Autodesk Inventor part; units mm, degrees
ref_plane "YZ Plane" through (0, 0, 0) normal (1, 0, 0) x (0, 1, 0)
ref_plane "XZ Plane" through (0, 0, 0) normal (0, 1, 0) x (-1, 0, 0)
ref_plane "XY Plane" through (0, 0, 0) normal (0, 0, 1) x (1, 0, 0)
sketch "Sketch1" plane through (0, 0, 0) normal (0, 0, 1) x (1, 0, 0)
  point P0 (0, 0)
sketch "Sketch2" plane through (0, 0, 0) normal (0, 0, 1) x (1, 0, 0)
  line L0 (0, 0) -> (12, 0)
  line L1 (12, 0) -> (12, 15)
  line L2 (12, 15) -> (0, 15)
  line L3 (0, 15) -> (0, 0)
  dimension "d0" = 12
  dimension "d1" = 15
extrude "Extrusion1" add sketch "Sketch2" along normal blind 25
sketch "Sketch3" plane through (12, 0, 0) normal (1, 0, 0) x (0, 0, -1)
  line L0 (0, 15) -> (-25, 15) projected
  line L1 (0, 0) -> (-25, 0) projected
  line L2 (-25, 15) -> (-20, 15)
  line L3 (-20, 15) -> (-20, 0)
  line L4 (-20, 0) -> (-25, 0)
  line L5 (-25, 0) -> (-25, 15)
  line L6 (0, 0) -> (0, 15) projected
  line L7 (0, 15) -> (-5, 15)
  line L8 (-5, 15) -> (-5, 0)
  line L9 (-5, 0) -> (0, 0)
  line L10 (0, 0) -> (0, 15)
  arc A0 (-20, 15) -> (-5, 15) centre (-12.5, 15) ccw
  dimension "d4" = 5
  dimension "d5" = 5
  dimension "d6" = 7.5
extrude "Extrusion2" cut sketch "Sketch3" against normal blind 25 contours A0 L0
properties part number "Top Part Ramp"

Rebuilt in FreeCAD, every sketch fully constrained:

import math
import FreeCAD as App
import Part
import Sketcher

doc = App.newDocument("Part")
body = doc.addObject("PartDesign::Body", "Body")

# Sketch on XY plane
sketch1 = doc.addObject("Sketcher::SketchObject", "Sketch")
body.addObject(sketch1)
sketch1.AttachmentSupport = (doc.XY_Plane, [""])
sketch1.MapMode = "FlatFace"
sketch1.addGeometry([
    Part.LineSegment(App.Vector(0, 15, 0), App.Vector(0, 0, 0)),
    Part.LineSegment(App.Vector(0, 0, 0), App.Vector(12, 0, 0)),
    Part.LineSegment(App.Vector(12, 0, 0), App.Vector(12, 15, 0)),
    Part.LineSegment(App.Vector(12, 15, 0), App.Vector(0, 15, 0)),
], False)
sketch1.addConstraint([
    Sketcher.Constraint("Coincident", 0, 2, 1, 1),
    Sketcher.Constraint("Coincident", 1, 2, 2, 1),
    Sketcher.Constraint("Coincident", 2, 2, 3, 1),
    Sketcher.Constraint("Coincident", 3, 2, 0, 1),
    Sketcher.Constraint("Vertical", 0),
    Sketcher.Constraint("Horizontal", 1),
    Sketcher.Constraint("Vertical", 2),
    Sketcher.Constraint("Horizontal", 3),
    Sketcher.Constraint("Coincident", 0, 2, -1, 1),
    Sketcher.Constraint("DistanceX", 1, 1, 1, 2, 12.0),
    Sketcher.Constraint("DistanceY", 0, 2, 0, 1, 15.0),
])
pad1 = doc.addObject("PartDesign::Pad", "Pad")
body.addObject(pad1)
pad1.Profile = sketch1
pad1.Length = 25

# Sketch on YZ plane
sketch2 = doc.addObject("Sketcher::SketchObject", "Sketch001")
body.addObject(sketch2)
sketch2.AttachmentSupport = (doc.YZ_Plane, [""])
sketch2.MapMode = "FlatFace"
sketch2.AttachmentOffset = App.Placement(App.Vector(0, 0, 12), App.Rotation())
sketch2.addGeometry([
    Part.ArcOfCircle(Part.Circle(App.Vector(15, 12.5, 0), App.Vector(0, 0, 1), 7.5), math.radians(90), math.radians(270)),
    Part.LineSegment(App.Vector(15, 5, 0), App.Vector(15, 20, 0)),
], False)
sketch2.addConstraint([
    Sketcher.Constraint("Coincident", 0, 1, 1, 2),
    Sketcher.Constraint("Coincident", 1, 1, 0, 2),
    Sketcher.Constraint("Vertical", 1),
    Sketcher.Constraint("Radius", 0, 7.5),
    Sketcher.Constraint("DistanceY", -1, 1, 1, 1, 5.0),
    Sketcher.Constraint("DistanceX", -1, 1, 0, 3, 15.0),
    Sketcher.Constraint("DistanceX", -1, 1, 0, 1, 15.0),
])
pocket1 = doc.addObject("PartDesign::Pocket", "Pocket")
body.addObject(pocket1)
pocket1.Profile = sketch2
pocket1.Length = 25

doc.recompute()
